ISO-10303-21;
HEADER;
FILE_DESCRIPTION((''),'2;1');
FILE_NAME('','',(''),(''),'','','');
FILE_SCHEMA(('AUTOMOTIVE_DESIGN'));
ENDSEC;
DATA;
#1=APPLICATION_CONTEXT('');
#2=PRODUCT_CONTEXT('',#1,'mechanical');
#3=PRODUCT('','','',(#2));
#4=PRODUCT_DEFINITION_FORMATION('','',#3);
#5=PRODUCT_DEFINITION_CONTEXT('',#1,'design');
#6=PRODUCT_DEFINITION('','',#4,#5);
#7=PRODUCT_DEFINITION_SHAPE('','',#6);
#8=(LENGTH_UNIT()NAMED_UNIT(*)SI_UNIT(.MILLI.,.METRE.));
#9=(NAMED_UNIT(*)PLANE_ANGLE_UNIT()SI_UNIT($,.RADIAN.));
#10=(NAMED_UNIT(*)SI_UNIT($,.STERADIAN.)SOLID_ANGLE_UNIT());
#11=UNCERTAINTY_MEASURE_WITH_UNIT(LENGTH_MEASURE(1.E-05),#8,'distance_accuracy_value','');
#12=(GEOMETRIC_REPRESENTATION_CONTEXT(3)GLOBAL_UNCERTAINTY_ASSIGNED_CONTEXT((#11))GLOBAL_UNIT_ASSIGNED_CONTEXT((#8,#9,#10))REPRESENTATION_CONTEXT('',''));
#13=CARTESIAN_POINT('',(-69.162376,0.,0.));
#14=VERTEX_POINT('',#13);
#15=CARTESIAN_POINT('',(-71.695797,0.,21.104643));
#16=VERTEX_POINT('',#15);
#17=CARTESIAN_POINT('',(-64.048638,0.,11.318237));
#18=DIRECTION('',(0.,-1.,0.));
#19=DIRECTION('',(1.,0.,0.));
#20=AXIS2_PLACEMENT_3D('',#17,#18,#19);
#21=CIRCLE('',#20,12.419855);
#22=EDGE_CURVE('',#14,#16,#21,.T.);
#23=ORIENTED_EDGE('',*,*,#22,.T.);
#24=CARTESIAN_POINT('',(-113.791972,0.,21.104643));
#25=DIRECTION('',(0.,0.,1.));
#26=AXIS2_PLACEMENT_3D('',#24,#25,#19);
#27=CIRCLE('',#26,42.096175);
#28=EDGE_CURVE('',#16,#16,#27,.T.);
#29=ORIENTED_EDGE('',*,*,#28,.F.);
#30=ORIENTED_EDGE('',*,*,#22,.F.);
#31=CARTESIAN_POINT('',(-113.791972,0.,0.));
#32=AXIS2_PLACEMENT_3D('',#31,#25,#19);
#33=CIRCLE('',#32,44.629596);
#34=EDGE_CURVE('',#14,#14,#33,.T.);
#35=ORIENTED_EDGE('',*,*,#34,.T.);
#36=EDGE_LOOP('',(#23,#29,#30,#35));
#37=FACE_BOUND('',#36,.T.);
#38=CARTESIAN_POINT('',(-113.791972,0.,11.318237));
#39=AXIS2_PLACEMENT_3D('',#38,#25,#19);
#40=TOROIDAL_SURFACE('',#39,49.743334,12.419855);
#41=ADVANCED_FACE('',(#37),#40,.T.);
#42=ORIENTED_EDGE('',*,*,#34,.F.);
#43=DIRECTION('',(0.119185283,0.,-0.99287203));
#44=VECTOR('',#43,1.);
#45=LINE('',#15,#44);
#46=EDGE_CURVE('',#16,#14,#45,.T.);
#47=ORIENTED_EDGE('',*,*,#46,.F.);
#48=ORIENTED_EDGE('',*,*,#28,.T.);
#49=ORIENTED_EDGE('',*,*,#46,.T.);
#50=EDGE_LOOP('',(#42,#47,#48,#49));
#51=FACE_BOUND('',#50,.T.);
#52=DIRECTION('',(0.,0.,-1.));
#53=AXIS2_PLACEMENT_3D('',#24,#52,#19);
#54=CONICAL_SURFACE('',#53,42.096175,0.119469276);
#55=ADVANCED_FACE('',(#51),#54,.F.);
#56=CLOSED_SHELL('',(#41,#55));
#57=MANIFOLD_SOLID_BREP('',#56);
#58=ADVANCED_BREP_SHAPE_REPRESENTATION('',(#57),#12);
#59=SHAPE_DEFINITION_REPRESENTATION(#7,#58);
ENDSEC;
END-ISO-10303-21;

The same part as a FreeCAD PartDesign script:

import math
import FreeCAD as App
import Part
import Sketcher

V = App.Vector
Q = App.Units.Quantity

doc = App.newDocument("Part")
body = doc.addObject("PartDesign::Body", "Body")

# Sketch on XZ plane
sketch1 = doc.addObject("Sketcher::SketchObject", "Sketch")
body.addObject(sketch1)
sketch1.AttachmentSupport = (doc.XZ_Plane, [""])
sketch1.MapMode = "FlatFace"
sketch1.addGeometry([
    Part.LineSegment(V(-72, 21, 0), V(-69, 0, 0)),
    Part.ArcOfCircle(Part.Circle(V(-64, 11, 0), V(0, 0, 1), 12), math.radians(-114), math.radians(128)),
], False)
sketch1.addConstraint([
    Sketcher.Constraint("Coincident", 0, 1, 1, 2),
    Sketcher.Constraint("Coincident", 1, 1, 0, 2),
    Sketcher.Constraint("PointOnObject", 1, 1, -1),
    Sketcher.Constraint("Radius", 1, Q("12.419855 mm")),
    Sketcher.Constraint("DistanceX", 0, 1, 1, 3, Q("7.647159 mm")),
    Sketcher.Constraint("DistanceX", 1, 1, 1, 3, Q("5.113738 mm")),
    Sketcher.Constraint("DistanceX", 1, 3, -1, 1, Q("64.048638 mm")),
])

# Sketch on XY plane
sketch2 = doc.addObject("Sketcher::SketchObject", "Sketch001")
body.addObject(sketch2)
sketch2.AttachmentSupport = (doc.XY_Plane, [""])
sketch2.MapMode = "FlatFace"
sketch2.addGeometry(Part.Circle(V(-114, 0, 0), V(0, 0, 1), 50), False)
sketch2.addConstraint([
    Sketcher.Constraint("PointOnObject", 0, 3, -1),
    Sketcher.Constraint("Diameter", 0, Q("99.70791 mm")),
    Sketcher.Constraint("DistanceX", 0, 3, -1, 1, Q("113.791972 mm")),
])
doc.recompute()

additivepipe = doc.addObject("PartDesign::AdditivePipe", "AdditivePipe")
body.addObject(additivepipe)
additivepipe.Profile = sketch1
additivepipe.Spine = (sketch2, ["Edge1"])

doc.recompute()
